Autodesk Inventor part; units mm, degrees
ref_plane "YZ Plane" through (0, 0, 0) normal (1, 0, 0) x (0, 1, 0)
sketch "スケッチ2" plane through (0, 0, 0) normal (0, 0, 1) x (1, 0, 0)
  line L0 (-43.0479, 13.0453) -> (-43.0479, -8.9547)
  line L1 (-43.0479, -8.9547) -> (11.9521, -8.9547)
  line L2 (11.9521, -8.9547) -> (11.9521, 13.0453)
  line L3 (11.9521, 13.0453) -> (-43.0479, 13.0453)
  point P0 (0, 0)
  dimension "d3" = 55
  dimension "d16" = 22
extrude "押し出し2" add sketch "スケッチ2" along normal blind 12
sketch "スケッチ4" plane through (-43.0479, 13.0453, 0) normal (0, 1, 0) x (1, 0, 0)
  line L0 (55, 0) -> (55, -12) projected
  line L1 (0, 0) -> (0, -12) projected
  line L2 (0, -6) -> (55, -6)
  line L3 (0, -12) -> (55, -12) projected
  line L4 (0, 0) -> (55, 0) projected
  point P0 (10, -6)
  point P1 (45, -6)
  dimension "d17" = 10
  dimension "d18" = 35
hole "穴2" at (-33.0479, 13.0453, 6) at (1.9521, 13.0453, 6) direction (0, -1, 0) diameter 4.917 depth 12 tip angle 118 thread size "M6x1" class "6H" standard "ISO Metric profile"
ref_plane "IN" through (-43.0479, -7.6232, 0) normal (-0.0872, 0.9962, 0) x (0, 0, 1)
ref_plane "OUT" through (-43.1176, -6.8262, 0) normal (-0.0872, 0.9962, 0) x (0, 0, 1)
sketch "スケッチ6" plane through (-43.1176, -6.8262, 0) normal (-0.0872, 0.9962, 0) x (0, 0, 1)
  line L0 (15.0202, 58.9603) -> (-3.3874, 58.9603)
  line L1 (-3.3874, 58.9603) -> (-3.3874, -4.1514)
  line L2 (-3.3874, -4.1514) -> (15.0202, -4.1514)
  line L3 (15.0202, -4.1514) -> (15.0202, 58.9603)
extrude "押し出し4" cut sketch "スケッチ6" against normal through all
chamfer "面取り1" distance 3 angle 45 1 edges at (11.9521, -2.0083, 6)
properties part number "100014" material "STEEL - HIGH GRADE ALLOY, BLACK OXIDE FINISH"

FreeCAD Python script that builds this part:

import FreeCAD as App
import Part
import Sketcher
from FreeCAD import Vector
Q = App.Units.Quantity


def edges_at(feature, points):
    """Names of the edges that pass closest to the given points."""
    edges = feature.Shape.Edges
    near = lambda p: min(range(len(edges)), key=lambda i: edges[i].distToShape(Part.Vertex(*p))[0])
    return sorted({f"Edge{near(p) + 1}" for p in points})


def add_polygon(sketch, points):
    """Adds a closed chain of lines whose ends are joined by coincident constraints."""
    first, n = sketch.GeometryCount, len(points)
    for a, b in zip(points, points[1:] + points[:1]):
        sketch.addGeometry(Part.LineSegment(App.Vector(*a, 0), App.Vector(*b, 0)), False)
    for i in range(n):
        sketch.addConstraint(Sketcher.Constraint("Coincident", first + i, 2, first + (i + 1) % n, 1))

doc = App.newDocument("Part")
params = doc.addObject("Spreadsheet::Sheet", "Params")
for row, (alias, value) in enumerate([
    ("sketch1_width", "55 mm"),
    ("sketch1_height", "22 mm"),
    ("pad1_length", "12 mm"),
    ("hole_diameter", "4.917 mm"),
    ("hole_depth", "12 mm"),
    ("chamfer_size", "3 mm"),
], start=1):
    params.set(f"A{row}", alias)
    params.set(f"B{row}", "=" + value)
    params.setAlias(f"B{row}", alias)

body = doc.addObject("PartDesign::Body", "Body")

# Sketch on XY plane
sketch1 = doc.addObject("Sketcher::SketchObject", "Sketch")
body.addObject(sketch1)
sketch1.AttachmentSupport = (doc.XY_Plane, [""])
sketch1.MapMode = "FlatFace"
add_polygon(sketch1, [(12, 13), (-43, 13), (-43, -9), (12, -9)])  # lines 0-3
sketch1.addConstraint(Sketcher.Constraint("Horizontal", 0))
sketch1.addConstraint(Sketcher.Constraint("Vertical", 1))
sketch1.addConstraint(Sketcher.Constraint("Horizontal", 2))
sketch1.addConstraint(Sketcher.Constraint("Vertical", 3))
sketch1.addConstraint(Sketcher.Constraint("DistanceX", 0, 2, 0, 1, Q("55 mm")))
sketch1.addConstraint(Sketcher.Constraint("DistanceY", 1, 2, 1, 1, Q("22 mm")))
sketch1.addConstraint(Sketcher.Constraint("DistanceX", 0, 2, -1, 1, Q("43.048 mm")))
sketch1.addConstraint(Sketcher.Constraint("DistanceY", -1, 1, 0, 2, Q("13.0453 mm")))
sketch1.setExpression("Constraints[8]", "Params.sketch1_width")
sketch1.setExpression("Constraints[9]", "Params.sketch1_height")
pad1 = doc.addObject("PartDesign::Pad", "Pad")
body.addObject(pad1)
pad1.Profile = sketch1
pad1.setExpression("Length", "Params.pad1_length")

# Sketch on XZ plane
sketch2 = doc.addObject("Sketcher::SketchObject", "Sketch001")
body.addObject(sketch2)
sketch2.AttachmentSupport = (doc.XZ_Plane, [""])
sketch2.MapMode = "FlatFace"
sketch2.AttachmentOffset = App.Placement(Vector(0, 0, -13.0453), App.Rotation())
sketch2.addGeometry(Part.Circle(Vector(-33, 6, 0), Vector(0, 0, 1), 2.5), False)
sketch2.addGeometry(Part.Circle(Vector(2, 6, 0), Vector(0, 0, 1), 2.5), False)
sketch2.addConstraint(Sketcher.Constraint("Equal", 0, 1))
sketch2.addConstraint(Sketcher.Constraint("Horizontal", 0, 3, 1, 3))
sketch2.addConstraint(Sketcher.Constraint("Diameter", 0, Q("4.917 mm")))
sketch2.addConstraint(Sketcher.Constraint("DistanceY", -1, 1, 0, 3, Q("6 mm")))
sketch2.addConstraint(Sketcher.Constraint("DistanceX", 0, 3, 1, 3, Q("35 mm")))
sketch2.addConstraint(Sketcher.Constraint("DistanceX", 0, 3, -1, 1, Q("33.048 mm")))
doc.recompute()
hole = doc.addObject("PartDesign::Hole", "Hole")
body.addObject(hole)
hole.Profile = sketch2
hole.ThreadType = "None"
hole.setExpression("Diameter", "Params.hole_diameter")
hole.DepthType = "Dimension"
hole.setExpression("Depth", "Params.hole_depth")
hole.DrillPoint = "Angled"
hole.DrillPointAngle = 118
hole.Reversed = True

# Sketch on an angled plane
sketch3 = doc.addObject("Sketcher::SketchObject", "Sketch002")
body.addObject(sketch3)
sketch3.Placement = App.Placement(Vector(-43.1176, -6.8262, 0), App.Rotation(Vector(0, 0, 1), Vector(0.996194698, 0.087155743, 0), Vector(-0.087155743, 0.996194698, 0), "ZXY"))
add_polygon(sketch3, [(15, -4), (15, 59), (-3, 59), (-3, -4)])  # lines 0-3
sketch3.addConstraint(Sketcher.Constraint("Vertical", 0))
sketch3.addConstraint(Sketcher.Constraint("Horizontal", 1))
sketch3.addConstraint(Sketcher.Constraint("Vertical", 2))
sketch3.addConstraint(Sketcher.Constraint("Horizontal", 3))
sketch3.addConstraint(Sketcher.Constraint("DistanceX", 1, 2, 1, 1, Q("18.4076 mm")))
sketch3.addConstraint(Sketcher.Constraint("DistanceY", 0, 1, 0, 2, Q("63.1117 mm")))
sketch3.addConstraint(Sketcher.Constraint("DistanceX", -1, 1, 0, 2, Q("15.0202 mm")))
sketch3.addConstraint(Sketcher.Constraint("DistanceY", -1, 1, 0, 2, Q("58.9603 mm")))
pocket1 = doc.addObject("PartDesign::Pocket", "Pocket")
body.addObject(pocket1)
pocket1.Profile = sketch3
pocket1.Type = "ThroughAll"
doc.recompute()

chamfer = doc.addObject("PartDesign::Chamfer", "Chamfer")
body.addObject(chamfer)
chamfer.Base = (pocket1, edges_at(pocket1, [(11.952, -2.008, 6)]))
chamfer.setExpression("Size", "Params.chamfer_size")

doc.recompute()
